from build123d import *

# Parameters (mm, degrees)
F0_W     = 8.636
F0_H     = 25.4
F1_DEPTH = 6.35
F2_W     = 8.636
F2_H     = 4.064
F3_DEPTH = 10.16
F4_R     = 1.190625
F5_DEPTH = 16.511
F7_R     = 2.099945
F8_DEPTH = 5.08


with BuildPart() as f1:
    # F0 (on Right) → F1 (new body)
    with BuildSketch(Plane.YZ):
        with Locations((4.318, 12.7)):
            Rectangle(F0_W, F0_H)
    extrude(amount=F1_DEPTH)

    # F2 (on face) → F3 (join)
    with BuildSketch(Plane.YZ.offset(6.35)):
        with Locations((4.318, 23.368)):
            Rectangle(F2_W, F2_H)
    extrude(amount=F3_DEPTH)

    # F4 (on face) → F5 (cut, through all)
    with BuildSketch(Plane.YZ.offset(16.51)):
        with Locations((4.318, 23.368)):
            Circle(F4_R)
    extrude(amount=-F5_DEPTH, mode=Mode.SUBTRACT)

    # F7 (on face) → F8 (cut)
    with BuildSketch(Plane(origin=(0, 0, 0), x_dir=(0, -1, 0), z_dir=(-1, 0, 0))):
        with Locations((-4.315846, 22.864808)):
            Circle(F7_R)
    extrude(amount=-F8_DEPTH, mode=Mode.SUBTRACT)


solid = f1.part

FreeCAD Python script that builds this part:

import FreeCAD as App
import Part
import Sketcher
from FreeCAD import Vector
Q = App.Units.Quantity

doc = App.newDocument("Part")
body = doc.addObject("PartDesign::Body", "Body")

# Sketch on YZ plane
sketch1 = body.newObject("Sketcher::SketchObject", "Sketch")
sketch1.AttachmentSupport = (doc.getObject("YZ_Plane"), [""])
sketch1.MapMode = "FlatFace"
sketch1.addGeometry(Part.LineSegment(Vector(0, 25, 0), Vector(0, 0, 0)), False)
sketch1.addGeometry(Part.LineSegment(Vector(0, 0, 0), Vector(9, 0, 0)), False)
sketch1.addGeometry(Part.LineSegment(Vector(9, 0, 0), Vector(9, 25, 0)), False)
sketch1.addGeometry(Part.LineSegment(Vector(9, 25, 0), Vector(0, 25, 0)), False)
sketch1.addConstraint(Sketcher.Constraint("Coincident", 0, 2, 1, 1))
sketch1.addConstraint(Sketcher.Constraint("Coincident", 1, 2, 2, 1))
sketch1.addConstraint(Sketcher.Constraint("Coincident", 2, 2, 3, 1))
sketch1.addConstraint(Sketcher.Constraint("Coincident", 3, 2, 0, 1))
sketch1.addConstraint(Sketcher.Constraint("Vertical", 0))
sketch1.addConstraint(Sketcher.Constraint("Horizontal", 1))
sketch1.addConstraint(Sketcher.Constraint("Vertical", 2))
sketch1.addConstraint(Sketcher.Constraint("Horizontal", 3))
sketch1.addConstraint(Sketcher.Constraint("Coincident", 0, 2, -1, 1))
sketch1.addConstraint(Sketcher.Constraint("DistanceY", 0, 2, 0, 1, Q("1 in")))
sketch1.addConstraint(Sketcher.Constraint("DistanceX", 1, 1, 1, 2, Q("0.34 in")))
pad1 = body.newObject("PartDesign::Pad", "Pad")
pad1.Profile = sketch1
pad1.Length = Q("0.25 in")

# Sketch on YZ plane
sketch2 = body.newObject("Sketcher::SketchObject", "Sketch001")
sketch2.AttachmentSupport = (doc.getObject("YZ_Plane"), [""])
sketch2.MapMode = "FlatFace"
sketch2.AttachmentOffset = App.Placement(Vector(0, 0, 0.25 * 25.4), App.Rotation())
sketch2.addGeometry(Part.LineSegment(Vector(0, 25.4, 0), Vector(0, 21.3, 0)), False)
sketch2.addGeometry(Part.LineSegment(Vector(0, 21.3, 0), Vector(8.6, 21.3, 0)), False)
sketch2.addGeometry(Part.LineSegment(Vector(8.6, 21.3, 0), Vector(8.6, 25.4, 0)), False)
sketch2.addGeometry(Part.LineSegment(Vector(8.6, 25.4, 0), Vector(0, 25.4, 0)), False)
sketch2.addConstraint(Sketcher.Constraint("Coincident", 0, 2, 1, 1))
sketch2.addConstraint(Sketcher.Constraint("Coincident", 1, 2, 2, 1))
sketch2.addConstraint(Sketcher.Constraint("Coincident", 2, 2, 3, 1))
sketch2.addConstraint(Sketcher.Constraint("Coincident", 3, 2, 0, 1))
sketch2.addConstraint(Sketcher.Constraint("Vertical", 0))
sketch2.addConstraint(Sketcher.Constraint("Horizontal", 1))
sketch2.addConstraint(Sketcher.Constraint("Vertical", 2))
sketch2.addConstraint(Sketcher.Constraint("Horizontal", 3))
sketch2.addConstraint(Sketcher.Constraint("PointOnObject", 0, 2, -2))
sketch2.addConstraint(Sketcher.Constraint("DistanceY", -1, 1, 2, 2, Q("1 in")))
sketch2.addConstraint(Sketcher.Constraint("DistanceX", 1, 1, 1, 2, Q("0.34 in")))
sketch2.addConstraint(Sketcher.Constraint("DistanceY", 0, 2, 0, 1, Q("0.16 in")))
pad2 = body.newObject("PartDesign::Pad", "Pad001")
pad2.Profile = sketch2
pad2.Length = Q("0.4 in")

# Sketch on YZ plane
sketch3 = body.newObject("Sketcher::SketchObject", "Sketch002")
sketch3.AttachmentSupport = (doc.getObject("YZ_Plane"), [""])
sketch3.MapMode = "FlatFace"
sketch3.AttachmentOffset = App.Placement(Vector(0, 0, 0.65 * 25.4), App.Rotation())
sketch3.addGeometry(Part.Circle(Vector(4.3, 23.4, 0), Vector(0, 0, 1), 1.2), False)
sketch3.addConstraint(Sketcher.Constraint("Diameter", 0, Q("0.09375 in")))
sketch3.addConstraint(Sketcher.Constraint("DistanceX", -1, 1, 0, 3, Q("0.17 in")))
sketch3.addConstraint(Sketcher.Constraint("DistanceY", -1, 1, 0, 3, Q("0.92 in")))
pocket1 = body.newObject("PartDesign::Pocket", "Pocket")
pocket1.Profile = sketch3
pocket1.Type = "ThroughAll"

# Sketch on YZ plane
sketch4 = body.newObject("Sketcher::SketchObject", "Sketch003")
sketch4.AttachmentSupport = (doc.getObject("YZ_Plane"), [""])
sketch4.MapMode = "FlatFace"
sketch4.addGeometry(Part.Circle(Vector(4.3, 22.9, 0), Vector(0, 0, 1), 2.1), False)
sketch4.addConstraint(Sketcher.Constraint("Diameter", 0, Q("4.19989 mm")))
sketch4.addConstraint(Sketcher.Constraint("DistanceY", -1, 1, 0, 3, Q("22.864808 mm")))
sketch4.addConstraint(Sketcher.Constraint("DistanceX", -1, 1, 0, 3, Q("4.315846 mm")))
pocket2 = body.newObject("PartDesign::Pocket", "Pocket001")
pocket2.Profile = sketch4
pocket2.Length = Q("0.2 in")
pocket2.Reversed = True

doc.recompute()
